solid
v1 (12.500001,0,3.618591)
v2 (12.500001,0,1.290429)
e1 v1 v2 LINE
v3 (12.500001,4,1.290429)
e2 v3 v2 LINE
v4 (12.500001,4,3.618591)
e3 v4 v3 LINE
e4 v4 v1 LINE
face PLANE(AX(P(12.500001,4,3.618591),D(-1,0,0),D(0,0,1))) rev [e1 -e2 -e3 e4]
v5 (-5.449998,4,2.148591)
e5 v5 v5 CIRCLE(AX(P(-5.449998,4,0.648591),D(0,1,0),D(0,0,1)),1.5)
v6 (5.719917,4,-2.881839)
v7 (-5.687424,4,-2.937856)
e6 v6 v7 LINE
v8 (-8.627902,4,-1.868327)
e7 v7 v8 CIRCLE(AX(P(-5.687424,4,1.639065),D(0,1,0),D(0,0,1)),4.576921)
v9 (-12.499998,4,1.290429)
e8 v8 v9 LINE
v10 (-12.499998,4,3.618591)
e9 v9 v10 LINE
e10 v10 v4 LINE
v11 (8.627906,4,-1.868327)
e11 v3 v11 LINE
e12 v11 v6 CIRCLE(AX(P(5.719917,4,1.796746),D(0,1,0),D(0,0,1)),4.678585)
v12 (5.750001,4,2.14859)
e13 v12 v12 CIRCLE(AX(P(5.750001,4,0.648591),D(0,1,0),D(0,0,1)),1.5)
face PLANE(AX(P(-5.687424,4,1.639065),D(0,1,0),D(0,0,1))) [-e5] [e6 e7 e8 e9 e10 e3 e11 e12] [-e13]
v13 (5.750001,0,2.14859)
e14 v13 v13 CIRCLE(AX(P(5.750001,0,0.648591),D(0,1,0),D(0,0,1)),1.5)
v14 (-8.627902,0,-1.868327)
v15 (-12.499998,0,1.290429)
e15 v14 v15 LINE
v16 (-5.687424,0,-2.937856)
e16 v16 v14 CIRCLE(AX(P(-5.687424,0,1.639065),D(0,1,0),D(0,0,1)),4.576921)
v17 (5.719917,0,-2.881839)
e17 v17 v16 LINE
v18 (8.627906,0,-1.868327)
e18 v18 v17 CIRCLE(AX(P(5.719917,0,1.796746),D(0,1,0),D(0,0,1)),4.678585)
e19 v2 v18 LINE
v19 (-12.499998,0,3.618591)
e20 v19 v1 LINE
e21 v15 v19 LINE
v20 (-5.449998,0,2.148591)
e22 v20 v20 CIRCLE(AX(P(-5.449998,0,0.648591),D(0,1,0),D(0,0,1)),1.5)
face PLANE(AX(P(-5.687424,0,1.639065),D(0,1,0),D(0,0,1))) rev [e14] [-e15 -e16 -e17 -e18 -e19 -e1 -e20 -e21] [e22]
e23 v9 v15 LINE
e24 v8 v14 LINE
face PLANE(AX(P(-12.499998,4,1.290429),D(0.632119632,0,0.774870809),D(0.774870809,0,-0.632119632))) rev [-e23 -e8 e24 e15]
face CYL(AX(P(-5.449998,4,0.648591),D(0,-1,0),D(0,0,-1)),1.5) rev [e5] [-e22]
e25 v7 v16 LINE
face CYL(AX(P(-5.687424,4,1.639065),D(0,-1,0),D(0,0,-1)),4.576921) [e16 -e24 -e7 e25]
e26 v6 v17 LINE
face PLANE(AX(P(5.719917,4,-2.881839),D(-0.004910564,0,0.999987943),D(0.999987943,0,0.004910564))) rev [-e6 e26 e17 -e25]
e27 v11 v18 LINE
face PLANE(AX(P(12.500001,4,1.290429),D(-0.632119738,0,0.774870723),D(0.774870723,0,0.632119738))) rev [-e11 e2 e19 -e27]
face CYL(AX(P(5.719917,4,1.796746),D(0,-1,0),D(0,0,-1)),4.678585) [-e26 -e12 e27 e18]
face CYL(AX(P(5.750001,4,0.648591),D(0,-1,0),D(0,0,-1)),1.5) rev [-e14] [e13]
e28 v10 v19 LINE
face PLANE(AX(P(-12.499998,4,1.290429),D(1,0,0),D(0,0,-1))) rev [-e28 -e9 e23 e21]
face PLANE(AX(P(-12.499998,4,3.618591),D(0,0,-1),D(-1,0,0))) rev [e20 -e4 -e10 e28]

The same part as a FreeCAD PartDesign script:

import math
import FreeCAD as App
import Part
import Sketcher

V = App.Vector
Q = App.Units.Quantity

doc = App.newDocument("Part")
params = doc.addObject("Spreadsheet::Sheet", "Params")
for row, (alias, value) in enumerate([
    ("sketch1_diameter", "3 mm"),
    ("sketch1_width", "24.999999 mm"),
    ("pad1_length", "4 mm"),
], start=1):
    params.set(f"A{row}", alias)
    params.set(f"B{row}", "=" + value)
    params.setAlias(f"B{row}", alias)

body = doc.addObject("PartDesign::Body", "Body")

sketch1 = body.newObject("Sketcher::SketchObject", "Sketch")
sketch1.AttachmentSupport = (doc.getObject("XZ_Plane"), [""])
sketch1.MapMode = "FlatFace"
sketch1.addGeometry(Part.LineSegment(V(-12.5, 1.3, 0), V(-12.5, 3.6, 0)), False)
sketch1.addGeometry(Part.LineSegment(V(-12.5, 3.6, 0), V(12.5, 3.6, 0)), False)
sketch1.addGeometry(Part.LineSegment(V(12.5, 3.6, 0), V(12.5, 1.3, 0)), False)
sketch1.addGeometry(Part.LineSegment(V(12.5, 1.3, 0), V(8.6, -1.9, 0)), False)
sketch1.addGeometry(Part.ArcOfCircle(Part.Circle(V(5.7, 1.8, 0), V(0, 0, 1), 4.7), math.radians(-90), math.radians(-52)), False)
sketch1.addGeometry(Part.LineSegment(V(5.7, -2.9, 0), V(-5.7, -2.9, 0)), False)
sketch1.addGeometry(Part.ArcOfCircle(Part.Circle(V(-5.7, 1.6, 0), V(0, 0, 1), 4.6), math.radians(-130), math.radians(-90)), False)
sketch1.addGeometry(Part.LineSegment(V(-8.6, -1.9, 0), V(-12.5, 1.3, 0)), False)
sketch1.addGeometry(Part.Circle(V(-5.4, 0.6, 0), V(0, 0, 1), 1.5), False)
sketch1.addGeometry(Part.Circle(V(5.8, 0.6, 0), V(0, 0, 1), 1.5), False)
sketch1.addConstraint(Sketcher.Constraint("Coincident", 0, 2, 1, 1))
sketch1.addConstraint(Sketcher.Constraint("Coincident", 1, 2, 2, 1))
sketch1.addConstraint(Sketcher.Constraint("Coincident", 2, 2, 3, 1))
sketch1.addConstraint(Sketcher.Constraint("Coincident", 3, 2, 4, 2))
sketch1.addConstraint(Sketcher.Constraint("Coincident", 4, 1, 5, 1))
sketch1.addConstraint(Sketcher.Constraint("Coincident", 5, 2, 6, 2))
sketch1.addConstraint(Sketcher.Constraint("Coincident", 6, 1, 7, 1))
sketch1.addConstraint(Sketcher.Constraint("Coincident", 7, 2, 0, 1))
sketch1.addConstraint(Sketcher.Constraint("Vertical", 0))
sketch1.addConstraint(Sketcher.Constraint("Horizontal", 1))
sketch1.addConstraint(Sketcher.Constraint("Vertical", 2))
sketch1.addConstraint(Sketcher.Constraint("Equal", 8, 9))
sketch1.addConstraint(Sketcher.Constraint("Symmetric", 3, 2, 6, 1, -2))
sketch1.addConstraint(Sketcher.Constraint("Symmetric", 2, 2, 7, 2, -2))
sketch1.addConstraint(Sketcher.Constraint("Horizontal", 8, 3, 9, 3))
sketch1.addConstraint(Sketcher.Constraint("Vertical", 6, 3, 5, 2))
sketch1.addConstraint(Sketcher.Constraint("Diameter", 8, Q("3 mm")))
sketch1.addConstraint(Sketcher.Constraint("DistanceX", 1, 1, 1, 2, Q("24.999999 mm")))
sketch1.addConstraint(Sketcher.Constraint("DistanceX", 8, 3, 9, 3, Q("11.199999 mm")))
sketch1.addConstraint(Sketcher.Constraint("DistanceX", 8, 3, -1, 1, Q("5.449998 mm")))
sketch1.addConstraint(Sketcher.Constraint("Radius", 6, Q("4.576921 mm")))
sketch1.addConstraint(Sketcher.Constraint("DistanceY", 8, 3, 0, 2, Q("2.97 mm")))
sketch1.addConstraint(Sketcher.Constraint("Radius", 4, Q("4.678585 mm")))
sketch1.addConstraint(Sketcher.Constraint("DistanceY", 0, 1, 0, 2, Q("2.328162 mm")))
sketch1.addConstraint(Sketcher.Constraint("DistanceX", 6, 1, -1, 1, Q("8.627902 mm")))
sketch1.addConstraint(Sketcher.Constraint("Distance", 5, Q("11.407479 mm")))
sketch1.addConstraint(Sketcher.Constraint("DistanceY", -1, 1, 8, 3, Q("0.648591 mm")))
sketch1.addConstraint(Sketcher.Constraint("DistanceY", 4, 1, -1, 1, Q("2.881839 mm")))
sketch1.addConstraint(Sketcher.Constraint("DistanceX", 6, 3, 4, 3, Q("11.407342 mm")))
sketch1.addConstraint(Sketcher.Constraint("DistanceY", 6, 3, 4, 3, Q("0.157681 mm")))
sketch1.setExpression("Constraints[16]", "Params.sketch1_diameter")
sketch1.setExpression("Constraints[17]", "Params.sketch1_width")
pad1 = body.newObject("PartDesign::Pad", "Pad")
pad1.Profile = sketch1
pad1.setExpression("Length", "Params.pad1_length")
pad1.Reversed = True

doc.recompute()
